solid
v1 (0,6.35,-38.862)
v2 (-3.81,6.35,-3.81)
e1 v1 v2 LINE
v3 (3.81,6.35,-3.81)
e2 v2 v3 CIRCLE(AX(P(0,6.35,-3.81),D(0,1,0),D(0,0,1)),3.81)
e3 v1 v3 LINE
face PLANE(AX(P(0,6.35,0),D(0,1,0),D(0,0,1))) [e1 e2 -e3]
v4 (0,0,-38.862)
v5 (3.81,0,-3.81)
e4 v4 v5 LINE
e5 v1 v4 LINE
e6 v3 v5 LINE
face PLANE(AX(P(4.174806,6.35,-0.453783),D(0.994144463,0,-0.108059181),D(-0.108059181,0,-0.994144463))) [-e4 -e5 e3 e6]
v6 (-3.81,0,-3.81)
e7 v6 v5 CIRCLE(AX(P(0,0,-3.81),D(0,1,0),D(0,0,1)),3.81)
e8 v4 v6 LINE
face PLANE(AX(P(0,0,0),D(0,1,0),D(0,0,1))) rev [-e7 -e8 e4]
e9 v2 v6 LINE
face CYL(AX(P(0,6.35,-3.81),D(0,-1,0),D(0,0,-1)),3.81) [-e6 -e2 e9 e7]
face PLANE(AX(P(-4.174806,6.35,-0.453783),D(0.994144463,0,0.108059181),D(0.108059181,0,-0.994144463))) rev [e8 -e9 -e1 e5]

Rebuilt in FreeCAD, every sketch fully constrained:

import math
import FreeCAD as App
import Part
import Sketcher
Q = App.Units.Quantity

doc = App.newDocument("Part")
body = doc.addObject("PartDesign::Body", "Body")

# Sketch on XZ plane
sketch1 = body.newObject("Sketcher::SketchObject", "Sketch")
sketch1.AttachmentSupport = (doc.getObject("XZ_Plane"), [""])
sketch1.MapMode = "FlatFace"
sketch1.addGeometry(Part.LineSegment(App.Vector(-3.7, -4.6, 0), App.Vector(-3.8, -3.8, 0)), False)
sketch1.addGeometry(Part.ArcOfCircle(Part.Circle(App.Vector(0, -3.8, 0), App.Vector(0, 0, 1), 3.8), math.radians(90), math.radians(180)), False)
sketch1.addGeometry(Part.ArcOfCircle(Part.Circle(App.Vector(0, -3.8, 0), App.Vector(0, 0, 1), 3.8), math.radians(0), math.radians(90)), False)
sketch1.addGeometry(Part.LineSegment(App.Vector(3.8, -3.8, 0), App.Vector(3.7, -4.6, 0)), False)
sketch1.addGeometry(Part.LineSegment(App.Vector(3.7, -4.6, 0), App.Vector(0, -38.9, 0)), False)
sketch1.addGeometry(Part.LineSegment(App.Vector(0, -38.9, 0), App.Vector(-3.7, -4.6, 0)), False)
sketch1.addConstraint(Sketcher.Constraint("Coincident", 0, 2, 1, 2))
sketch1.addConstraint(Sketcher.Constraint("Tangent", 1, 1, 2, 2))
sketch1.addConstraint(Sketcher.Constraint("Coincident", 2, 1, 3, 1))
sketch1.addConstraint(Sketcher.Constraint("Coincident", 3, 2, 4, 1))
sketch1.addConstraint(Sketcher.Constraint("Coincident", 4, 2, 5, 1))
sketch1.addConstraint(Sketcher.Constraint("Coincident", 5, 2, 0, 1))
sketch1.addConstraint(Sketcher.Constraint("Coincident", 1, 1, -1, 1))
sketch1.addConstraint(Sketcher.Constraint("Equal", 1, 2))
sketch1.addConstraint(Sketcher.Constraint("Symmetric", 0, 2, 2, 1, -2))
sketch1.addConstraint(Sketcher.Constraint("Symmetric", 3, 2, 5, 2, -2))
sketch1.addConstraint(Sketcher.Constraint("PointOnObject", 4, 2, -2))
sketch1.addConstraint(Sketcher.Constraint("Parallel", 3, 4))
sketch1.addConstraint(Sketcher.Constraint("Horizontal", 2, 3, 0, 2))
sketch1.addConstraint(Sketcher.Constraint("Radius", 1, Q("0.15 in")))
sketch1.addConstraint(Sketcher.Constraint("DistanceY", 4, 2, -1, 1, Q("1.53 in")))
sketch1.addConstraint(Sketcher.Constraint("Distance", 0, 0.823411))
pad1 = body.newObject("PartDesign::Pad", "Pad")
pad1.Profile = sketch1
pad1.Length = Q("0.25 in")
pad1.Reversed = True

doc.recompute()
